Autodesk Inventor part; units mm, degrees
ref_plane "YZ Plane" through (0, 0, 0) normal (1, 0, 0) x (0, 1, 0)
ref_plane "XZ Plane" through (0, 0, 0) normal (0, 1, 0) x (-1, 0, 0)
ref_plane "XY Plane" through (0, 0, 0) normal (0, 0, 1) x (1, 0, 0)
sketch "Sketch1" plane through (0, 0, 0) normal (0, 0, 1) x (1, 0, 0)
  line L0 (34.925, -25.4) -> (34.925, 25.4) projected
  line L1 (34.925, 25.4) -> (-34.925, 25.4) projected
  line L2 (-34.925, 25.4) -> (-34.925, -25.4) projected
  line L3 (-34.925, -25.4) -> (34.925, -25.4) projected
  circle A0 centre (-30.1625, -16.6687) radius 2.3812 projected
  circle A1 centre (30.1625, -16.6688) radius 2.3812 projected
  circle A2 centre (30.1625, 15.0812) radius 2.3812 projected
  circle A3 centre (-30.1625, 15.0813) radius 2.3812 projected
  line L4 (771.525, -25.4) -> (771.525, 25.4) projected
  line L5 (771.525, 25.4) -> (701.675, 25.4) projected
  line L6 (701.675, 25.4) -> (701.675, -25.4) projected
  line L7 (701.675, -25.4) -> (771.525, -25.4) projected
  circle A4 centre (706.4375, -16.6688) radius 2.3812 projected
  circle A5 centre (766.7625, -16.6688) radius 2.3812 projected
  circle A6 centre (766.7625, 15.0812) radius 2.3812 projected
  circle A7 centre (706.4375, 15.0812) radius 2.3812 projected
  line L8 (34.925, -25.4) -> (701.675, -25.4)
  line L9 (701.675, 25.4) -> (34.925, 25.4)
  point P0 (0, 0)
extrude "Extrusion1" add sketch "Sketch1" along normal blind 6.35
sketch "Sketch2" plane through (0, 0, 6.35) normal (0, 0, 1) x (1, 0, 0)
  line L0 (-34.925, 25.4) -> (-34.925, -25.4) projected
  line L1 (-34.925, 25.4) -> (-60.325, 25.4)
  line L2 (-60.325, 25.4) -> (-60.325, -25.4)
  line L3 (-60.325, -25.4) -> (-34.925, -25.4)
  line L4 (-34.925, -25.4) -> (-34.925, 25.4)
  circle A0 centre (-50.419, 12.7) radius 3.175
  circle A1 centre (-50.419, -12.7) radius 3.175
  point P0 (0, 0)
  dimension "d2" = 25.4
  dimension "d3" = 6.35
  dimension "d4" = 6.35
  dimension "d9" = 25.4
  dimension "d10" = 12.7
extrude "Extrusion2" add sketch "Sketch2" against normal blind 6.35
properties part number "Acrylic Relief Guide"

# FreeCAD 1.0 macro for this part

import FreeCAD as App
import Part
import Sketcher
from FreeCAD import Vector
Q = App.Units.Quantity

doc = App.newDocument("Part")
body = doc.addObject("PartDesign::Body", "Body")

sketch1 = body.newObject("Sketcher::SketchObject", "Sketch")
sketch1.AttachmentSupport = (doc.getObject("XY_Plane"), [""])
sketch1.MapMode = "FlatFace"
sketch1.addGeometry([
    Part.LineSegment(Vector(-34.925, -25.4, 0), Vector(771.525, -25.4, 0)),
    Part.LineSegment(Vector(771.525, -25.4, 0), Vector(771.525, 25.4, 0)),
    Part.LineSegment(Vector(771.525, 25.4, 0), Vector(-34.925, 25.4, 0)),
    Part.LineSegment(Vector(-34.925, 25.4, 0), Vector(-34.925, -25.4, 0)),
    Part.Circle(Vector(-30.1625, -16.6687, 0), Vector(0, 0, 1), 2.3812),
    Part.Circle(Vector(30.1625, -16.6688, 0), Vector(0, 0, 1), 2.3812),
    Part.Circle(Vector(-30.1625, 15.0813, 0), Vector(0, 0, 1), 2.3812),
    Part.Circle(Vector(30.1625, 15.0812, 0), Vector(0, 0, 1), 2.3812),
    Part.Circle(Vector(766.7625, 15.0812, 0), Vector(0, 0, 1), 2.3812),
    Part.Circle(Vector(706.4375, -16.6688, 0), Vector(0, 0, 1), 2.3812),
    Part.Circle(Vector(766.7625, -16.6688, 0), Vector(0, 0, 1), 2.3812),
    Part.Circle(Vector(706.4375, 15.0812, 0), Vector(0, 0, 1), 2.3812),
], False)
sketch1.addConstraint([
    Sketcher.Constraint("Coincident", 0, 2, 1, 1),
    Sketcher.Constraint("Coincident", 1, 2, 2, 1),
    Sketcher.Constraint("Coincident", 2, 2, 3, 1),
    Sketcher.Constraint("Coincident", 3, 2, 0, 1),
    Sketcher.Constraint("Horizontal", 0),
    Sketcher.Constraint("Vertical", 1),
    Sketcher.Constraint("Horizontal", 2),
    Sketcher.Constraint("Vertical", 3),
    Sketcher.Constraint("Equal", 4, 5),
    Sketcher.Constraint("Equal", 5, 6),
    Sketcher.Constraint("Equal", 6, 7),
    Sketcher.Constraint("Equal", 7, 8),
    Sketcher.Constraint("Equal", 8, 9),
    Sketcher.Constraint("Equal", 9, 10),
    Sketcher.Constraint("Equal", 10, 11),
    Sketcher.Constraint("Symmetric", 4, 3, 5, 3, -2),
    Sketcher.Constraint("Symmetric", 6, 3, 7, 3, -2),
    Sketcher.Constraint("Horizontal", 7, 3, 8, 3),
    Sketcher.Constraint("Horizontal", 5, 3, 9, 3),
    Sketcher.Constraint("Horizontal", 9, 3, 10, 3),
    Sketcher.Constraint("Horizontal", 8, 3, 11, 3),
    Sketcher.Constraint("Vertical", 4, 3, 6, 3),
    Sketcher.Constraint("Vertical", 8, 3, 10, 3),
    Sketcher.Constraint("Vertical", 9, 3, 11, 3),
    Sketcher.Constraint("DistanceY", 1, 1, 1, 2, Q("2 in")),
    Sketcher.Constraint("Diameter", 4, Q("0.1875 in")),
    Sketcher.Constraint("DistanceY", 0, 2, -1, 1, Q("1 in")),
    Sketcher.Constraint("DistanceX", 7, 3, 8, 3, Q("29 in")),
    Sketcher.Constraint("DistanceX", 4, 3, 9, 3, Q("29 in")),
    Sketcher.Constraint("DistanceX", 0, 1, 0, 2, Q("31.75 in")),
    Sketcher.Constraint("DistanceY", 4, 3, 6, 3, Q("1.25 in")),
    Sketcher.Constraint("DistanceX", 4, 3, -1, 1, Q("1.1875 in")),
    Sketcher.Constraint("DistanceY", 4, 3, -1, 1, Q("0.656248 in")),
    Sketcher.Constraint("DistanceX", -1, 1, 0, 2, Q("30.375 in")),
])
pad1 = body.newObject("PartDesign::Pad", "Pad")
pad1.Profile = sketch1
pad1.Length = Q("0.25 in")

sketch2 = body.newObject("Sketcher::SketchObject", "Sketch001")
sketch2.AttachmentSupport = (doc.getObject("XY_Plane"), [""])
sketch2.MapMode = "FlatFace"
sketch2.AttachmentOffset = App.Placement(Vector(0, 0, 0.25 * 25.4), App.Rotation())
sketch2.addGeometry([
    Part.LineSegment(Vector(-34.925, -25.4, 0), Vector(-34.925, 25.4, 0)),
    Part.LineSegment(Vector(-34.925, 25.4, 0), Vector(-60.325, 25.4, 0)),
    Part.LineSegment(Vector(-60.325, 25.4, 0), Vector(-60.325, -25.4, 0)),
    Part.LineSegment(Vector(-60.325, -25.4, 0), Vector(-34.925, -25.4, 0)),
    Part.Circle(Vector(-50.419, -12.7, 0), Vector(0, 0, 1), 3.175),
    Part.Circle(Vector(-50.419, 12.7, 0), Vector(0, 0, 1), 3.175),
], False)
sketch2.addConstraint([
    Sketcher.Constraint("Coincident", 0, 2, 1, 1),
    Sketcher.Constraint("Coincident", 1, 2, 2, 1),
    Sketcher.Constraint("Coincident", 2, 2, 3, 1),
    Sketcher.Constraint("Coincident", 3, 2, 0, 1),
    Sketcher.Constraint("Vertical", 0),
    Sketcher.Constraint("Horizontal", 1),
    Sketcher.Constraint("Vertical", 2),
    Sketcher.Constraint("Horizontal", 3),
    Sketcher.Constraint("Equal", 4, 5),
    Sketcher.Constraint("Symmetric", 4, 3, 5, 3, -1),
    Sketcher.Constraint("Diameter", 4, Q("0.25 in")),
    Sketcher.Constraint("DistanceX", 1, 2, 1, 1, Q("1 in")),
    Sketcher.Constraint("DistanceY", -1, 1, 0, 2, Q("1 in")),
    Sketcher.Constraint("DistanceY", 2, 2, -1, 1, Q("1 in")),
    Sketcher.Constraint("DistanceY", 4, 3, 5, 3, Q("1 in")),
    Sketcher.Constraint("DistanceX", 5, 3, 0, 2, Q("0.61 in")),
    Sketcher.Constraint("DistanceX", 4, 3, -1, 1, Q("1.985 in")),
])
pad2 = body.newObject("PartDesign::Pad", "Pad001")
pad2.Profile = sketch2
pad2.Length = Q("0.25 in")
pad2.Reversed = True

doc.recompute()
